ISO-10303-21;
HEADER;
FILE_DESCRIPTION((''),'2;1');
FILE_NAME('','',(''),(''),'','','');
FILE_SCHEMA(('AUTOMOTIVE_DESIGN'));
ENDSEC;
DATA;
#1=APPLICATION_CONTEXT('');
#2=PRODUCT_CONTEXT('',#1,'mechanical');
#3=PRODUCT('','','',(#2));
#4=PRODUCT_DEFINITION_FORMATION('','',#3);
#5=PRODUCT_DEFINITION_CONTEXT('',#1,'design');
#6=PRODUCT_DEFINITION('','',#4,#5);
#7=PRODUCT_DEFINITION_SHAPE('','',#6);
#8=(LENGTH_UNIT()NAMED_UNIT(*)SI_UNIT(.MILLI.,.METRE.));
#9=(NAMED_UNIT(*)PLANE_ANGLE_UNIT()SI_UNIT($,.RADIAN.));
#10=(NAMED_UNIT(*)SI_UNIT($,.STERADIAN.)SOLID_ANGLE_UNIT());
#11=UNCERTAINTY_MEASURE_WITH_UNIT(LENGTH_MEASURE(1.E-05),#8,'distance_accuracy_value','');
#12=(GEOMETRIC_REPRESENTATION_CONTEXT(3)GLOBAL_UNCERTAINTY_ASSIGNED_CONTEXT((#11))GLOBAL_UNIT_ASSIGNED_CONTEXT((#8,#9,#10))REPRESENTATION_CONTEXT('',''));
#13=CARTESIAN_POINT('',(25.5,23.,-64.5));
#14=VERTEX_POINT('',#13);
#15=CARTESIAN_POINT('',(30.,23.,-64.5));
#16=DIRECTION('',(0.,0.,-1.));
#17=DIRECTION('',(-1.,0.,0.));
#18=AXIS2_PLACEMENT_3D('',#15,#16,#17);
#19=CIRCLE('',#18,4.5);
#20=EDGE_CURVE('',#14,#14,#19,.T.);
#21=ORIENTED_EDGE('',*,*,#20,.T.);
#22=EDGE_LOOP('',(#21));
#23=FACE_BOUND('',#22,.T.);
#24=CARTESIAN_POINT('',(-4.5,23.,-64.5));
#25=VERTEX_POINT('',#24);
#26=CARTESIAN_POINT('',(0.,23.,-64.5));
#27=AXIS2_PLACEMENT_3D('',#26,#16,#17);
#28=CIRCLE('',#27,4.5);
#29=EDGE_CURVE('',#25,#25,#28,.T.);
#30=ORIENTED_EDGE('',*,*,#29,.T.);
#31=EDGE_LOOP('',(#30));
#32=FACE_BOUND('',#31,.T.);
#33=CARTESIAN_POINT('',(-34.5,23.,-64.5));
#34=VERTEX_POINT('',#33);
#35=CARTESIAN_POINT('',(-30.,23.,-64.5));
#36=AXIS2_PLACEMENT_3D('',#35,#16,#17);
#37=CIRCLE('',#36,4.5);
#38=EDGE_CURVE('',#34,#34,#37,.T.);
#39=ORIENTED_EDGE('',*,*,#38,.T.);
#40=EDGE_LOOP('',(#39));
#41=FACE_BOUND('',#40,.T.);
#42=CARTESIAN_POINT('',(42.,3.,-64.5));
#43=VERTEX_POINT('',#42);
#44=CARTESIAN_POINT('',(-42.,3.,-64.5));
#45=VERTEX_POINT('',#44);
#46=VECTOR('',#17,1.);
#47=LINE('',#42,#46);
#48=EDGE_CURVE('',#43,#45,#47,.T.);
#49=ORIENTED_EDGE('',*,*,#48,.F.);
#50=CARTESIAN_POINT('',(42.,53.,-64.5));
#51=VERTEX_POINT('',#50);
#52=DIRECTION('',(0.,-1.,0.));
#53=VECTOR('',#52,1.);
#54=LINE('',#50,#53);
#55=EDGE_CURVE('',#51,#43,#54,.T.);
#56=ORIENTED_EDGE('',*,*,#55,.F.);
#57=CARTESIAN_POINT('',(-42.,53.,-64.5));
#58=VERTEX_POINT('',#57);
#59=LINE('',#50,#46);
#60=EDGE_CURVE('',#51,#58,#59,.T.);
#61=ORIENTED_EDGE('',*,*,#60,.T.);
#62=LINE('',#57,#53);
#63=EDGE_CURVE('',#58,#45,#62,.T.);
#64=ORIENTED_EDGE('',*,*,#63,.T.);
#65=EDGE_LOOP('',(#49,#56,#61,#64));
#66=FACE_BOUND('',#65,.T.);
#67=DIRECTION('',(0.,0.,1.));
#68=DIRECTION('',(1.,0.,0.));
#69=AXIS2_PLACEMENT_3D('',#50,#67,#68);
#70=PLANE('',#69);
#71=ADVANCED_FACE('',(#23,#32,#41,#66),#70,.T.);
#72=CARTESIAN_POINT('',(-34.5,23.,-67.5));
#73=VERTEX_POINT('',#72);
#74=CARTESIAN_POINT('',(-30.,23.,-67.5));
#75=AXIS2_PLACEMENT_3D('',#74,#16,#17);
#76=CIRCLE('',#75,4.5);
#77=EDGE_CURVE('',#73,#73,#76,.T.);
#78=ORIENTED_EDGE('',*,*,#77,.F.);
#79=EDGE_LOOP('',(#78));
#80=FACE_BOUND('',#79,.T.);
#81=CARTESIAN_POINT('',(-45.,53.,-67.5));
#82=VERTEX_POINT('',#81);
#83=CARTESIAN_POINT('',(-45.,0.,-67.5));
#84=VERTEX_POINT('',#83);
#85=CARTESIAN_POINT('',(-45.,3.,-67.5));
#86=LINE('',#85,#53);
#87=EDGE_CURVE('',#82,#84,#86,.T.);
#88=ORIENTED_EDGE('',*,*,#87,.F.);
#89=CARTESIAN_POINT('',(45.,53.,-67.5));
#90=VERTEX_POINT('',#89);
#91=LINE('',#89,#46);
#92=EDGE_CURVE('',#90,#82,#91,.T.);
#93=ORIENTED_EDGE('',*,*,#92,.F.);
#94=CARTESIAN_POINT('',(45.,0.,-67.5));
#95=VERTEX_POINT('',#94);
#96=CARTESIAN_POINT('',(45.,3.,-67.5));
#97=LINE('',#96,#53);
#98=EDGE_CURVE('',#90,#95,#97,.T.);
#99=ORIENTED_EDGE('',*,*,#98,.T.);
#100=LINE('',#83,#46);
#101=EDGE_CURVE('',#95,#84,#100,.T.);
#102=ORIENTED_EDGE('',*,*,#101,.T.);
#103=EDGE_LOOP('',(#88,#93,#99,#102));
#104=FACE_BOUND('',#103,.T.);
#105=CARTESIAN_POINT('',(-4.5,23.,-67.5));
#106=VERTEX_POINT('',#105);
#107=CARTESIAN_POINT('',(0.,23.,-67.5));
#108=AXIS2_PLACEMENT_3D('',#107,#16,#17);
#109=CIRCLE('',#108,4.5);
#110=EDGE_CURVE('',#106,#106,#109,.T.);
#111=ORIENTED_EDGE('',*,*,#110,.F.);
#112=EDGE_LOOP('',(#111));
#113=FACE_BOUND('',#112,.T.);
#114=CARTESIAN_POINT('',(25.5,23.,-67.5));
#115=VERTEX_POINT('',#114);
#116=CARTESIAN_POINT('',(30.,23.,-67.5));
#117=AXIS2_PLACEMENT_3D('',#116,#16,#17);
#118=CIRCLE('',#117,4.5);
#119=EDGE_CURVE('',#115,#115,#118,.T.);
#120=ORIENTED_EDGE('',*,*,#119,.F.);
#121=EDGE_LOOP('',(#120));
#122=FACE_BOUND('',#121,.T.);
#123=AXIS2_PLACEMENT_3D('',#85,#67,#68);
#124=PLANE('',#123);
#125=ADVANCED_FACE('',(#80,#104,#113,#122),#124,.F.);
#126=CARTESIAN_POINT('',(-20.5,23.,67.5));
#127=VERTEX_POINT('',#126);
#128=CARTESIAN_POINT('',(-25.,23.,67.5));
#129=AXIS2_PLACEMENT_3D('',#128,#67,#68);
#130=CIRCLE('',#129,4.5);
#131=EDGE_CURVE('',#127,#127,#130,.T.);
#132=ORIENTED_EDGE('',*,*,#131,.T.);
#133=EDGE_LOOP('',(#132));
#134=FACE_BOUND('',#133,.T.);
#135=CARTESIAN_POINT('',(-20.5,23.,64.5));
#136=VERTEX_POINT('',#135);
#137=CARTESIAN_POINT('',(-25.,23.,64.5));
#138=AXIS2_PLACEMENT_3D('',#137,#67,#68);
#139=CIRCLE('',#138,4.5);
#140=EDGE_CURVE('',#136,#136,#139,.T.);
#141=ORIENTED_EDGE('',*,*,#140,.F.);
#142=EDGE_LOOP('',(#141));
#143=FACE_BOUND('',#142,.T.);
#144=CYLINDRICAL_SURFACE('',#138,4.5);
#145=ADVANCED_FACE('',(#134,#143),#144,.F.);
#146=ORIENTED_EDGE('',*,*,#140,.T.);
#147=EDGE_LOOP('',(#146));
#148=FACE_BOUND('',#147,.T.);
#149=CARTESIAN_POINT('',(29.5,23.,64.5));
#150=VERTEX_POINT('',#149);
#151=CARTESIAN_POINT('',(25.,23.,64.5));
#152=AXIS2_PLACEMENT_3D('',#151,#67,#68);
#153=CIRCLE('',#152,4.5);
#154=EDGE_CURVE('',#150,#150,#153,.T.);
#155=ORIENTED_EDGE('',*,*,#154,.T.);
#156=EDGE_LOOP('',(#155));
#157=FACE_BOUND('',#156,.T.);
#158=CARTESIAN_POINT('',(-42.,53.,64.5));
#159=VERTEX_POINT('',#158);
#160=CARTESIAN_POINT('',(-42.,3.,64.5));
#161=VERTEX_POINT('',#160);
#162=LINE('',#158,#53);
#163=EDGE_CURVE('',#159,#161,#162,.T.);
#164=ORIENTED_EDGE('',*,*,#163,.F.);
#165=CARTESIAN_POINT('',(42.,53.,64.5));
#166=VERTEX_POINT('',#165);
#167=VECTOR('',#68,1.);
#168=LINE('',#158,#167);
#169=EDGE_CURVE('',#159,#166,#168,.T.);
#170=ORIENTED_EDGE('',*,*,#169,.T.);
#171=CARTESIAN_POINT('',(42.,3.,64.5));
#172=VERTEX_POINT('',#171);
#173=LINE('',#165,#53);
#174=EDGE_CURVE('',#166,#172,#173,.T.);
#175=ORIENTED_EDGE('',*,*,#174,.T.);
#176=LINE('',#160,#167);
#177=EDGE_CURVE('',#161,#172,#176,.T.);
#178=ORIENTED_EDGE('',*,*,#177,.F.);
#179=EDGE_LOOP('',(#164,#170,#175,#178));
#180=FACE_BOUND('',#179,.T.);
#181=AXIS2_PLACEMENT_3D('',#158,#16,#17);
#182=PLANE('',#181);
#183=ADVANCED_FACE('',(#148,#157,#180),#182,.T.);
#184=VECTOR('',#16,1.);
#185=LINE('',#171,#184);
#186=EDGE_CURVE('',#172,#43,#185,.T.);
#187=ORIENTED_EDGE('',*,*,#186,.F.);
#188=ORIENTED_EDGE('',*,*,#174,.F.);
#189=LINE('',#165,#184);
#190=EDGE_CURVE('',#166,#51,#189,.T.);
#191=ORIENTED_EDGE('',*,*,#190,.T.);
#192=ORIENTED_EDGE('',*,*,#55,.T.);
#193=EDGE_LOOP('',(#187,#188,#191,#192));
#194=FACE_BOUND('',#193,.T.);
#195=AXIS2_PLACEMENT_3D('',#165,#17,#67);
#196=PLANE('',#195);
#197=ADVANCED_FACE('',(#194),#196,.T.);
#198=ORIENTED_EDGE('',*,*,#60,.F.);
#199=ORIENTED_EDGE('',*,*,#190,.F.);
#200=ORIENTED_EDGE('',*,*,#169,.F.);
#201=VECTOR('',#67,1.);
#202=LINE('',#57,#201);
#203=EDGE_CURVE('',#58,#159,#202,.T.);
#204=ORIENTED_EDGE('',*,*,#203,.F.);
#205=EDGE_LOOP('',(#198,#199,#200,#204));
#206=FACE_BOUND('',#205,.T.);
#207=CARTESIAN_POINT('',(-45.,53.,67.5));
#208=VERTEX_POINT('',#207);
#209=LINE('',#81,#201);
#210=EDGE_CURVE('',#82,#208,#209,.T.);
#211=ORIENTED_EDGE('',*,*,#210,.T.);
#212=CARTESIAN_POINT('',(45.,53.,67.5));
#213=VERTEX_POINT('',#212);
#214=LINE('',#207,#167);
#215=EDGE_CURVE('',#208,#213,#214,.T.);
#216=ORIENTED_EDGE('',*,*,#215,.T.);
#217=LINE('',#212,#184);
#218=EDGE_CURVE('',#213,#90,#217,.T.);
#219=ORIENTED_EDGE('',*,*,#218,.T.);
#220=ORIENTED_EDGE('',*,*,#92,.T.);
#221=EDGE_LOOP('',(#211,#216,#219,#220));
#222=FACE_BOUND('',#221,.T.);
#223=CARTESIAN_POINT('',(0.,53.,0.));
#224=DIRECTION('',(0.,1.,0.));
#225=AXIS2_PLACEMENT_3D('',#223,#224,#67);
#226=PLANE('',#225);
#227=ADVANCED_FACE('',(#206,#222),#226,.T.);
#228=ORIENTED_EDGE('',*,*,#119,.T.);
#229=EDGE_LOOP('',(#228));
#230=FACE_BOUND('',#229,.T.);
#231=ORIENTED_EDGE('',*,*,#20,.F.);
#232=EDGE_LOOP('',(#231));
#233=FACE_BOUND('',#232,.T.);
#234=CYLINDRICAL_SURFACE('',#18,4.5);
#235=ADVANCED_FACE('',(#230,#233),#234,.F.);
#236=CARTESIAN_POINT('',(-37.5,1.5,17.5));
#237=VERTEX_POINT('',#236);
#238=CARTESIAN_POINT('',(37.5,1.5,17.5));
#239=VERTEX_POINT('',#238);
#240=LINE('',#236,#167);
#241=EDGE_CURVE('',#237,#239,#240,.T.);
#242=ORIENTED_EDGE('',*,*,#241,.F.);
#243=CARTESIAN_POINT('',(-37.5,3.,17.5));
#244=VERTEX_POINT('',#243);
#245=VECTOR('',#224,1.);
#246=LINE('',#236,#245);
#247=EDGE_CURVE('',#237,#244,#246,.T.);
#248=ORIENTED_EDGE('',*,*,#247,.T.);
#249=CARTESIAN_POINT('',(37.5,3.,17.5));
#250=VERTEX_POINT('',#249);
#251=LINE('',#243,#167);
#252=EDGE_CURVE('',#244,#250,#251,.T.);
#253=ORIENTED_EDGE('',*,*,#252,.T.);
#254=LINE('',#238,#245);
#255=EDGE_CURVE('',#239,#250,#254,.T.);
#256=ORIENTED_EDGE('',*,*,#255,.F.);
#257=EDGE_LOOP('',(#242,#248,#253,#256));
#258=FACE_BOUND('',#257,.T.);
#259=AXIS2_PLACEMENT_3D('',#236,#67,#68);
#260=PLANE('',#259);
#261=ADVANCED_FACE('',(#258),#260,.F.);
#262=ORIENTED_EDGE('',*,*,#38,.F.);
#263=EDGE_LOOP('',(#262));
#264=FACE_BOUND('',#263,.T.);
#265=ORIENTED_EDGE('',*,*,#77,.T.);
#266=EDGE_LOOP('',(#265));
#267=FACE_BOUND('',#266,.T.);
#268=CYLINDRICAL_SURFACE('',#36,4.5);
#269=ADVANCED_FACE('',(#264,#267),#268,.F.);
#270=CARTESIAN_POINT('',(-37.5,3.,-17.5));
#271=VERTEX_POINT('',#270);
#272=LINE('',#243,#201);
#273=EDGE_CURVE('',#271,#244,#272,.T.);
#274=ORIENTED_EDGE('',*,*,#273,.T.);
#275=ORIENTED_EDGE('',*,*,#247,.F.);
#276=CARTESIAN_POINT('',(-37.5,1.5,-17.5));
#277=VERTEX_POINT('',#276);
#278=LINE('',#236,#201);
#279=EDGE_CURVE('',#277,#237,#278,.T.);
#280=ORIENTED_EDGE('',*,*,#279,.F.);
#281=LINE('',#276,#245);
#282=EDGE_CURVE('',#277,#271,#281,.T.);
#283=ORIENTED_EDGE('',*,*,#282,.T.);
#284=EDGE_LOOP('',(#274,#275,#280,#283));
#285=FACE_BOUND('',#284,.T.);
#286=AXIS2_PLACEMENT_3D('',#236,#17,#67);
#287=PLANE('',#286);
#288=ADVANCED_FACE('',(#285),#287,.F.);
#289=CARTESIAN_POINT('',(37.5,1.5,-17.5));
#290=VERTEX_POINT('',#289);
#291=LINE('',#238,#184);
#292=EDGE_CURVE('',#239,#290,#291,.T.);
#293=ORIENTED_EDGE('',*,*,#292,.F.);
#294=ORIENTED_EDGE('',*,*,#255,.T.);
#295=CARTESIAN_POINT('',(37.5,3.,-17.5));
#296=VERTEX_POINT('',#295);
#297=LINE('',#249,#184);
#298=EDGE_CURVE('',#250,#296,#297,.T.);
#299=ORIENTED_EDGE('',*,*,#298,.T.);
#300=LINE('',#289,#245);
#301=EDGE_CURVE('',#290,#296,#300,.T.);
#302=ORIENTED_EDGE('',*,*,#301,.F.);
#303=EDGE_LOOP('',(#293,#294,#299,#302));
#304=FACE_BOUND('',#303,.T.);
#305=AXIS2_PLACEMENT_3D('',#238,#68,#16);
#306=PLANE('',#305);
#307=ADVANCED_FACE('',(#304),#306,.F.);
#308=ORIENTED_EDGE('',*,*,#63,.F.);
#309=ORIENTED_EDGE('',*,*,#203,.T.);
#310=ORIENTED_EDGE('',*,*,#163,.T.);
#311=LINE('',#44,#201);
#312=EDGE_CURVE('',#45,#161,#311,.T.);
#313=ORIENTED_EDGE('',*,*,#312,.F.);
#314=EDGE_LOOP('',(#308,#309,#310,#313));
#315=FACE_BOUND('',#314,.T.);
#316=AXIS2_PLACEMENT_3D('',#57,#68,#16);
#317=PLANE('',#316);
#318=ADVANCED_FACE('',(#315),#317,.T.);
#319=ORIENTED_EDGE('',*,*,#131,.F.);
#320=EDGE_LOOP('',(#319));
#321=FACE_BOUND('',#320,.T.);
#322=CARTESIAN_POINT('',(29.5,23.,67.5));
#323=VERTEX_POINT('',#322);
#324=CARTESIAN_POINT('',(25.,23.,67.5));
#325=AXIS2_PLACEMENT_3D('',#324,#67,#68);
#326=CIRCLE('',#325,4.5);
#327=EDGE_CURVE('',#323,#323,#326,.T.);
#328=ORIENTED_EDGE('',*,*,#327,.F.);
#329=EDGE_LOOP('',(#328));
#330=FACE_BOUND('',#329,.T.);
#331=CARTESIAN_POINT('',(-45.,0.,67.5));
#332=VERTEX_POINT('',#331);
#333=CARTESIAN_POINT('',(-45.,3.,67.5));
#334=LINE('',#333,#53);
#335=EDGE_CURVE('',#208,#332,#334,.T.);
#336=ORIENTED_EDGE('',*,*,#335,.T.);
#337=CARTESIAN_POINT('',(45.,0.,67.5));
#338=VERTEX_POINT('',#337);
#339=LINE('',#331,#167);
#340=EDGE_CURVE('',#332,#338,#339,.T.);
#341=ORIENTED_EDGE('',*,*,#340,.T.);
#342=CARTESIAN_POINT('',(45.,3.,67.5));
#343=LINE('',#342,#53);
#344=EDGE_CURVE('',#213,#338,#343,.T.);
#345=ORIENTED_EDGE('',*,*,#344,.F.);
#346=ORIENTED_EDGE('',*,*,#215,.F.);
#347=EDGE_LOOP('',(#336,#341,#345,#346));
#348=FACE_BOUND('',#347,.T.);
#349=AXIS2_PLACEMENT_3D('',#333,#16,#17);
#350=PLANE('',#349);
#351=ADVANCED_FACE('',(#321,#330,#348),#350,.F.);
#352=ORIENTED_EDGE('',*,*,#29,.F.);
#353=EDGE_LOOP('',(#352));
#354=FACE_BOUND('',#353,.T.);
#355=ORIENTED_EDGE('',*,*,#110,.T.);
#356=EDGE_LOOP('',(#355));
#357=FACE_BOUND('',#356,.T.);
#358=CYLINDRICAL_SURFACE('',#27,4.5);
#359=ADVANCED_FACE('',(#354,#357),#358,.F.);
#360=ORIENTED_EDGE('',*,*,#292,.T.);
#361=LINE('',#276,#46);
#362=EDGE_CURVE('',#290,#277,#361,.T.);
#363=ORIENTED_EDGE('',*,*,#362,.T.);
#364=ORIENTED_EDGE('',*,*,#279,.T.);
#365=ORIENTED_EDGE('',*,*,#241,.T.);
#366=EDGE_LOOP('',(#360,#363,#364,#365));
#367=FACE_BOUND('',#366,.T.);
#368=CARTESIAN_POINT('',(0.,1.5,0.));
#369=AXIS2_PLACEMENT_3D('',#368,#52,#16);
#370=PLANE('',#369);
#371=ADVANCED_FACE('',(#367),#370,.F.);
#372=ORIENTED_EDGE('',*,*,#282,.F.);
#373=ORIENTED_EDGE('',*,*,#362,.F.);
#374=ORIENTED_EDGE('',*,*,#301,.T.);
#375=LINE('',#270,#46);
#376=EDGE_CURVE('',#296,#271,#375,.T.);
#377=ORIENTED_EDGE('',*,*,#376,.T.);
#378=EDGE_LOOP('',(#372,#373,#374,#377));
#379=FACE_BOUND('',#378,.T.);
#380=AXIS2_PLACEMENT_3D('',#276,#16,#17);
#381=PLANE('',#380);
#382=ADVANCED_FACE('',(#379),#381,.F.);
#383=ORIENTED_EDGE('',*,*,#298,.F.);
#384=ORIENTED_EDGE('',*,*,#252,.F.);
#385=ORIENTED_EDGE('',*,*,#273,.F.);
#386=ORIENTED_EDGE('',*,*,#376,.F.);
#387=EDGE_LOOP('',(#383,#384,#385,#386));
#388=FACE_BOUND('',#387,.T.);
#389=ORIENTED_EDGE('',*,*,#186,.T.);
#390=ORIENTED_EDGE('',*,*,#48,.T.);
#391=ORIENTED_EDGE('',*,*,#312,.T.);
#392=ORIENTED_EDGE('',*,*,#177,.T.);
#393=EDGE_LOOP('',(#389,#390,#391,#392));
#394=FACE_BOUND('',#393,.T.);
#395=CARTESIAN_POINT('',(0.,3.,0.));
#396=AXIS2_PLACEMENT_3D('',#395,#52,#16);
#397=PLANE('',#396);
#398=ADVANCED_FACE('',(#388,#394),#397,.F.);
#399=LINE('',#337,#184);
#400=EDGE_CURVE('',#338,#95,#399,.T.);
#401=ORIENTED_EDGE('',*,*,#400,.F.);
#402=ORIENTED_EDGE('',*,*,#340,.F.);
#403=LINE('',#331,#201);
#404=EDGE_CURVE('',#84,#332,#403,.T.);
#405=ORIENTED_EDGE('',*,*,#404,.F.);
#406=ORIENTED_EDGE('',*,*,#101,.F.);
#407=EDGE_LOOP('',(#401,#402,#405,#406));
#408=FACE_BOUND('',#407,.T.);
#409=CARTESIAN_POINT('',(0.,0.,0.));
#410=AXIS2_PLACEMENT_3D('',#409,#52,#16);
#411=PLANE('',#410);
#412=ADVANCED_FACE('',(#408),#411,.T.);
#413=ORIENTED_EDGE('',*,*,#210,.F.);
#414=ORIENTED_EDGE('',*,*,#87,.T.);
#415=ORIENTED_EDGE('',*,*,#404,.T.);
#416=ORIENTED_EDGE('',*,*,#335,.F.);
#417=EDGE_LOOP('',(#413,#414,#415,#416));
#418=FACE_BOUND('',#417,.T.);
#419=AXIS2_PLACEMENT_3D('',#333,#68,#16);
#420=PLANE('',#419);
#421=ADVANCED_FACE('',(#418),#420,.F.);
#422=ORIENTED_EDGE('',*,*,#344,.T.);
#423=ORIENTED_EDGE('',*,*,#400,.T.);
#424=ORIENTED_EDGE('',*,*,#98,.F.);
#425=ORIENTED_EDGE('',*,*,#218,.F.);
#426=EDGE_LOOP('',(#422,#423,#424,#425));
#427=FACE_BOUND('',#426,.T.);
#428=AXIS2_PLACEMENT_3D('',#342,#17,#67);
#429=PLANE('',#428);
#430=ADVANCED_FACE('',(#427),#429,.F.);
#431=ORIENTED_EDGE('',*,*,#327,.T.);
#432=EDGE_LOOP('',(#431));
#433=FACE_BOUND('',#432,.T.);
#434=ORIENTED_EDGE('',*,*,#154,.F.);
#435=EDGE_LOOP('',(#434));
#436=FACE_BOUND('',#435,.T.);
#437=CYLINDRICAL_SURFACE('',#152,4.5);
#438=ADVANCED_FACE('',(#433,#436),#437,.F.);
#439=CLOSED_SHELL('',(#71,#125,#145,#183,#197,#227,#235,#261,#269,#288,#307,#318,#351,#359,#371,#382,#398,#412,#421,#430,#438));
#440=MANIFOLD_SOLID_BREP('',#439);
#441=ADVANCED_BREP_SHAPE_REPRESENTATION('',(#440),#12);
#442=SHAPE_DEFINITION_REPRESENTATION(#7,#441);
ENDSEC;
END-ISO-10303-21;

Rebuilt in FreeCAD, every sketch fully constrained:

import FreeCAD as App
import Part
import Sketcher
Q = App.Units.Quantity


def add_polygon(sketch, points):
    """Adds a closed chain of lines whose ends are joined by coincident constraints."""
    first, n = sketch.GeometryCount, len(points)
    for a, b in zip(points, points[1:] + points[:1]):
        sketch.addGeometry(Part.LineSegment(App.Vector(*a, 0), App.Vector(*b, 0)), False)
    for i in range(n):
        sketch.addConstraint(Sketcher.Constraint("Coincident", first + i, 2, first + (i + 1) % n, 1))

doc = App.newDocument("Part")
body = doc.addObject("PartDesign::Body", "Body")

sketch1 = doc.addObject("Sketcher::SketchObject", "Sketch")
body.addObject(sketch1)
sketch1.AttachmentSupport = (doc.XZ_Plane, [""])
sketch1.MapMode = "FlatFace"
add_polygon(sketch1, [(-45, -68), (-45, 68), (45, 68), (45, -68)])
sketch1.addConstraint(Sketcher.Constraint("Vertical", 0))
sketch1.addConstraint(Sketcher.Constraint("Horizontal", 1))
sketch1.addConstraint(Sketcher.Constraint("Vertical", 2))
sketch1.addConstraint(Sketcher.Constraint("Horizontal", 3))
sketch1.addConstraint(Sketcher.Constraint("Symmetric", 0, 2, 2, 2, -1, 1))
sketch1.addConstraint(Sketcher.Constraint("DistanceX", 1, 1, 1, 2, Q("90 mm")))
sketch1.addConstraint(Sketcher.Constraint("DistanceY", 0, 1, 0, 2, Q("135 mm")))
pad1 = doc.addObject("PartDesign::Pad", "Pad")
body.addObject(pad1)
pad1.Profile = sketch1
pad1.Length = 3
pad1.Reversed = True

sketch2 = doc.addObject("Sketcher::SketchObject", "Sketch001")
body.addObject(sketch2)
sketch2.AttachmentSupport = (doc.XZ_Plane, [""])
sketch2.MapMode = "FlatFace"
sketch2.AttachmentOffset = App.Placement(App.Vector(0, 0, -3), App.Rotation())
add_polygon(sketch2, [(-38, -18), (-38, 18), (38, 18), (38, -18)])
sketch2.addConstraint(Sketcher.Constraint("Vertical", 0))
sketch2.addConstraint(Sketcher.Constraint("Horizontal", 1))
sketch2.addConstraint(Sketcher.Constraint("Vertical", 2))
sketch2.addConstraint(Sketcher.Constraint("Horizontal", 3))
sketch2.addConstraint(Sketcher.Constraint("Symmetric", 0, 2, 2, 2, -1, 1))
sketch2.addConstraint(Sketcher.Constraint("DistanceX", 1, 1, 1, 2, Q("75 mm")))
sketch2.addConstraint(Sketcher.Constraint("DistanceY", 0, 1, 0, 2, Q("35 mm")))
pocket1 = doc.addObject("PartDesign::Pocket", "Pocket")
body.addObject(pocket1)
pocket1.Profile = sketch2
pocket1.Length = 1.5
pocket1.Reversed = True

sketch3 = doc.addObject("Sketcher::SketchObject", "Sketch002")
body.addObject(sketch3)
sketch3.AttachmentSupport = (doc.XZ_Plane, [""])
sketch3.MapMode = "FlatFace"
sketch3.AttachmentOffset = App.Placement(App.Vector(0, 0, -3), App.Rotation())
add_polygon(sketch3, [(-45, -68), (-45, 68), (45, 68), (45, -68)])
add_polygon(sketch3, [(42, 64), (-42, 64), (-42, -64), (42, -64)])
sketch3.addConstraint(Sketcher.Constraint("Vertical", 0))
sketch3.addConstraint(Sketcher.Constraint("Horizontal", 1))
sketch3.addConstraint(Sketcher.Constraint("Vertical", 2))
sketch3.addConstraint(Sketcher.Constraint("Horizontal", 3))
sketch3.addConstraint(Sketcher.Constraint("Horizontal", 4))
sketch3.addConstraint(Sketcher.Constraint("Vertical", 5))
sketch3.addConstraint(Sketcher.Constraint("Horizontal", 6))
sketch3.addConstraint(Sketcher.Constraint("Vertical", 7))
sketch3.addConstraint(Sketcher.Constraint("Symmetric", 0, 2, 2, 2, -1, 1))
sketch3.addConstraint(Sketcher.Constraint("Symmetric", 4, 2, 6, 2, -1, 1))
sketch3.addConstraint(Sketcher.Constraint("DistanceX", 1, 1, 1, 2, Q("90 mm")))
sketch3.addConstraint(Sketcher.Constraint("DistanceX", 4, 2, 4, 1, Q("84 mm")))
sketch3.addConstraint(Sketcher.Constraint("DistanceY", 0, 1, 0, 2, Q("135 mm")))
sketch3.addConstraint(Sketcher.Constraint("DistanceY", 5, 2, 5, 1, Q("129 mm")))
pad2 = doc.addObject("PartDesign::Pad", "Pad001")
body.addObject(pad2)
pad2.Profile = sketch3
pad2.Length = 50
pad2.Reversed = True

sketch4 = doc.addObject("Sketcher::SketchObject", "Sketch003")
body.addObject(sketch4)
sketch4.AttachmentSupport = (doc.XY_Plane, [""])
sketch4.MapMode = "FlatFace"
sketch4.AttachmentOffset = App.Placement(App.Vector(0, 0, 67.5), App.Rotation())
sketch4.addGeometry(Part.Circle(App.Vector(-25, 23, 0), App.Vector(0, 0, 1), 4.5), False)
sketch4.addGeometry(Part.Circle(App.Vector(25, 23, 0), App.Vector(0, 0, 1), 4.5), False)
sketch4.addConstraint(Sketcher.Constraint("Equal", 0, 1))
sketch4.addConstraint(Sketcher.Constraint("Symmetric", 0, 3, 1, 3, -2))
sketch4.addConstraint(Sketcher.Constraint("Diameter", 0, Q("9 mm")))
sketch4.addConstraint(Sketcher.Constraint("DistanceX", 0, 3, -1, 1, Q("25 mm")))
sketch4.addConstraint(Sketcher.Constraint("DistanceY", -1, 1, 0, 3, Q("23 mm")))
pocket2 = doc.addObject("PartDesign::Pocket", "Pocket001")
body.addObject(pocket2)
pocket2.Profile = sketch4
pocket2.Length = 3

sketch5 = doc.addObject("Sketcher::SketchObject", "Sketch004")
body.addObject(sketch5)
sketch5.AttachmentSupport = (doc.XY_Plane, [""])
sketch5.MapMode = "FlatFace"
sketch5.AttachmentOffset = App.Placement(App.Vector(0, 0, -67.5), App.Rotation())
sketch5.addGeometry(Part.Circle(App.Vector(30, 23, 0), App.Vector(0, 0, 1), 4.5), False)
sketch5.addGeometry(Part.Circle(App.Vector(0, 23, 0), App.Vector(0, 0, 1), 4.5), False)
sketch5.addGeometry(Part.Circle(App.Vector(-30, 23, 0), App.Vector(0, 0, 1), 4.5), False)
sketch5.addConstraint(Sketcher.Constraint("Equal", 0, 1))
sketch5.addConstraint(Sketcher.Constraint("Equal", 1, 2))
sketch5.addConstraint(Sketcher.Constraint("Symmetric", 0, 3, 2, 3, -2))
sketch5.addConstraint(Sketcher.Constraint("PointOnObject", 1, 3, -2))
sketch5.addConstraint(Sketcher.Constraint("Horizontal", 0, 3, 1, 3))
sketch5.addConstraint(Sketcher.Constraint("Diameter", 0, Q("9 mm")))
sketch5.addConstraint(Sketcher.Constraint("DistanceX", -1, 1, 0, 3, Q("30 mm")))
sketch5.addConstraint(Sketcher.Constraint("DistanceY", -1, 1, 0, 3, Q("23 mm")))
pocket3 = doc.addObject("PartDesign::Pocket", "Pocket002")
body.addObject(pocket3)
pocket3.Profile = sketch5
pocket3.Length = 3
pocket3.Reversed = True

doc.recompute()
